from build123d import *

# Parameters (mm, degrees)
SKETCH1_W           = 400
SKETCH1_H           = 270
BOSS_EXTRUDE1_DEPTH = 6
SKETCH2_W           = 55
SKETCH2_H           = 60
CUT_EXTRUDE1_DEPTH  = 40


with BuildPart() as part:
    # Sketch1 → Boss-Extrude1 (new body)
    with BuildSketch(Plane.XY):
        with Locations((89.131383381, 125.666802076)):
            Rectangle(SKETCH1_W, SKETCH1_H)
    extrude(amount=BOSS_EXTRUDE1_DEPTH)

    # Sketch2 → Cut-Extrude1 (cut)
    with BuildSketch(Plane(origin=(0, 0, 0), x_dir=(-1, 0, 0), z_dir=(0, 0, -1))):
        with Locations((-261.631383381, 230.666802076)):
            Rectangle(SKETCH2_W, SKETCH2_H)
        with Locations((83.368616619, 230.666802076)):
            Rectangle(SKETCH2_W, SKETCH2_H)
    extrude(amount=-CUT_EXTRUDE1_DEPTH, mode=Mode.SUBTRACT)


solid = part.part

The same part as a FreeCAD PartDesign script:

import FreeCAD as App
import Part
import Sketcher


def add_polygon(sketch, points):
    """Adds a closed chain of lines whose ends are joined by coincident constraints."""
    first, n = sketch.GeometryCount, len(points)
    for a, b in zip(points, points[1:] + points[:1]):
        sketch.addGeometry(Part.LineSegment(App.Vector(*a, 0), App.Vector(*b, 0)), False)
    for i in range(n):
        sketch.addConstraint(Sketcher.Constraint("Coincident", first + i, 2, first + (i + 1) % n, 1))

doc = App.newDocument("Part")
body = doc.addObject("PartDesign::Body", "Body")

sketch1 = body.newObject("Sketcher::SketchObject", "Sketch")
sketch1.AttachmentSupport = (doc.getObject("XY_Plane"), [""])
sketch1.MapMode = "FlatFace"
add_polygon(sketch1, [(-111, 261), (-111, -9), (289, -9), (289, 261)])
sketch1.addConstraint([
    Sketcher.Constraint("Vertical", 0),
    Sketcher.Constraint("Horizontal", 1),
    Sketcher.Constraint("Vertical", 2),
    Sketcher.Constraint("Horizontal", 3),
    Sketcher.Constraint("DistanceX", 1, 1, 1, 2, 400.0),
    Sketcher.Constraint("DistanceY", 0, 2, 0, 1, 270.0),
    Sketcher.Constraint("DistanceX", 0, 2, -1, 1, 110.868617),
    Sketcher.Constraint("DistanceY", 0, 2, -1, 1, 9.333198),
])
pad1 = body.newObject("PartDesign::Pad", "Pad")
pad1.Profile = sketch1
pad1.Length = 6

sketch2 = body.newObject("Sketcher::SketchObject", "Sketch001")
sketch2.AttachmentSupport = (doc.getObject("XY_Plane"), [""])
sketch2.MapMode = "FlatFace"
add_polygon(sketch2, [(289, 261), (289, 201), (234, 201), (234, 261)])
add_polygon(sketch2, [(-56, 261), (-56, 201), (-111, 201), (-111, 261)])
sketch2.addConstraint([
    Sketcher.Constraint("Vertical", 0),
    Sketcher.Constraint("Horizontal", 1),
    Sketcher.Constraint("Vertical", 2),
    Sketcher.Constraint("Horizontal", 3),
    Sketcher.Constraint("Vertical", 4),
    Sketcher.Constraint("Horizontal", 5),
    Sketcher.Constraint("Vertical", 6),
    Sketcher.Constraint("Horizontal", 7),
    Sketcher.Constraint("Horizontal", 1, 2, 4, 2),
    Sketcher.Constraint("Horizontal", 3, 2, 6, 2),
    Sketcher.Constraint("Equal", 3, 5),
    Sketcher.Constraint("DistanceX", 1, 2, 1, 1, 55.0),
    Sketcher.Constraint("DistanceY", 0, 2, 0, 1, 60.0),
    Sketcher.Constraint("DistanceX", 4, 2, 1, 2, 290.0),
    Sketcher.Constraint("DistanceX", -1, 1, 0, 2, 289.131383),
    Sketcher.Constraint("DistanceY", -1, 1, 0, 2, 200.666802),
])
pocket1 = body.newObject("PartDesign::Pocket", "Pocket")
pocket1.Profile = sketch2
pocket1.Length = 40
pocket1.Reversed = True

doc.recompute()
